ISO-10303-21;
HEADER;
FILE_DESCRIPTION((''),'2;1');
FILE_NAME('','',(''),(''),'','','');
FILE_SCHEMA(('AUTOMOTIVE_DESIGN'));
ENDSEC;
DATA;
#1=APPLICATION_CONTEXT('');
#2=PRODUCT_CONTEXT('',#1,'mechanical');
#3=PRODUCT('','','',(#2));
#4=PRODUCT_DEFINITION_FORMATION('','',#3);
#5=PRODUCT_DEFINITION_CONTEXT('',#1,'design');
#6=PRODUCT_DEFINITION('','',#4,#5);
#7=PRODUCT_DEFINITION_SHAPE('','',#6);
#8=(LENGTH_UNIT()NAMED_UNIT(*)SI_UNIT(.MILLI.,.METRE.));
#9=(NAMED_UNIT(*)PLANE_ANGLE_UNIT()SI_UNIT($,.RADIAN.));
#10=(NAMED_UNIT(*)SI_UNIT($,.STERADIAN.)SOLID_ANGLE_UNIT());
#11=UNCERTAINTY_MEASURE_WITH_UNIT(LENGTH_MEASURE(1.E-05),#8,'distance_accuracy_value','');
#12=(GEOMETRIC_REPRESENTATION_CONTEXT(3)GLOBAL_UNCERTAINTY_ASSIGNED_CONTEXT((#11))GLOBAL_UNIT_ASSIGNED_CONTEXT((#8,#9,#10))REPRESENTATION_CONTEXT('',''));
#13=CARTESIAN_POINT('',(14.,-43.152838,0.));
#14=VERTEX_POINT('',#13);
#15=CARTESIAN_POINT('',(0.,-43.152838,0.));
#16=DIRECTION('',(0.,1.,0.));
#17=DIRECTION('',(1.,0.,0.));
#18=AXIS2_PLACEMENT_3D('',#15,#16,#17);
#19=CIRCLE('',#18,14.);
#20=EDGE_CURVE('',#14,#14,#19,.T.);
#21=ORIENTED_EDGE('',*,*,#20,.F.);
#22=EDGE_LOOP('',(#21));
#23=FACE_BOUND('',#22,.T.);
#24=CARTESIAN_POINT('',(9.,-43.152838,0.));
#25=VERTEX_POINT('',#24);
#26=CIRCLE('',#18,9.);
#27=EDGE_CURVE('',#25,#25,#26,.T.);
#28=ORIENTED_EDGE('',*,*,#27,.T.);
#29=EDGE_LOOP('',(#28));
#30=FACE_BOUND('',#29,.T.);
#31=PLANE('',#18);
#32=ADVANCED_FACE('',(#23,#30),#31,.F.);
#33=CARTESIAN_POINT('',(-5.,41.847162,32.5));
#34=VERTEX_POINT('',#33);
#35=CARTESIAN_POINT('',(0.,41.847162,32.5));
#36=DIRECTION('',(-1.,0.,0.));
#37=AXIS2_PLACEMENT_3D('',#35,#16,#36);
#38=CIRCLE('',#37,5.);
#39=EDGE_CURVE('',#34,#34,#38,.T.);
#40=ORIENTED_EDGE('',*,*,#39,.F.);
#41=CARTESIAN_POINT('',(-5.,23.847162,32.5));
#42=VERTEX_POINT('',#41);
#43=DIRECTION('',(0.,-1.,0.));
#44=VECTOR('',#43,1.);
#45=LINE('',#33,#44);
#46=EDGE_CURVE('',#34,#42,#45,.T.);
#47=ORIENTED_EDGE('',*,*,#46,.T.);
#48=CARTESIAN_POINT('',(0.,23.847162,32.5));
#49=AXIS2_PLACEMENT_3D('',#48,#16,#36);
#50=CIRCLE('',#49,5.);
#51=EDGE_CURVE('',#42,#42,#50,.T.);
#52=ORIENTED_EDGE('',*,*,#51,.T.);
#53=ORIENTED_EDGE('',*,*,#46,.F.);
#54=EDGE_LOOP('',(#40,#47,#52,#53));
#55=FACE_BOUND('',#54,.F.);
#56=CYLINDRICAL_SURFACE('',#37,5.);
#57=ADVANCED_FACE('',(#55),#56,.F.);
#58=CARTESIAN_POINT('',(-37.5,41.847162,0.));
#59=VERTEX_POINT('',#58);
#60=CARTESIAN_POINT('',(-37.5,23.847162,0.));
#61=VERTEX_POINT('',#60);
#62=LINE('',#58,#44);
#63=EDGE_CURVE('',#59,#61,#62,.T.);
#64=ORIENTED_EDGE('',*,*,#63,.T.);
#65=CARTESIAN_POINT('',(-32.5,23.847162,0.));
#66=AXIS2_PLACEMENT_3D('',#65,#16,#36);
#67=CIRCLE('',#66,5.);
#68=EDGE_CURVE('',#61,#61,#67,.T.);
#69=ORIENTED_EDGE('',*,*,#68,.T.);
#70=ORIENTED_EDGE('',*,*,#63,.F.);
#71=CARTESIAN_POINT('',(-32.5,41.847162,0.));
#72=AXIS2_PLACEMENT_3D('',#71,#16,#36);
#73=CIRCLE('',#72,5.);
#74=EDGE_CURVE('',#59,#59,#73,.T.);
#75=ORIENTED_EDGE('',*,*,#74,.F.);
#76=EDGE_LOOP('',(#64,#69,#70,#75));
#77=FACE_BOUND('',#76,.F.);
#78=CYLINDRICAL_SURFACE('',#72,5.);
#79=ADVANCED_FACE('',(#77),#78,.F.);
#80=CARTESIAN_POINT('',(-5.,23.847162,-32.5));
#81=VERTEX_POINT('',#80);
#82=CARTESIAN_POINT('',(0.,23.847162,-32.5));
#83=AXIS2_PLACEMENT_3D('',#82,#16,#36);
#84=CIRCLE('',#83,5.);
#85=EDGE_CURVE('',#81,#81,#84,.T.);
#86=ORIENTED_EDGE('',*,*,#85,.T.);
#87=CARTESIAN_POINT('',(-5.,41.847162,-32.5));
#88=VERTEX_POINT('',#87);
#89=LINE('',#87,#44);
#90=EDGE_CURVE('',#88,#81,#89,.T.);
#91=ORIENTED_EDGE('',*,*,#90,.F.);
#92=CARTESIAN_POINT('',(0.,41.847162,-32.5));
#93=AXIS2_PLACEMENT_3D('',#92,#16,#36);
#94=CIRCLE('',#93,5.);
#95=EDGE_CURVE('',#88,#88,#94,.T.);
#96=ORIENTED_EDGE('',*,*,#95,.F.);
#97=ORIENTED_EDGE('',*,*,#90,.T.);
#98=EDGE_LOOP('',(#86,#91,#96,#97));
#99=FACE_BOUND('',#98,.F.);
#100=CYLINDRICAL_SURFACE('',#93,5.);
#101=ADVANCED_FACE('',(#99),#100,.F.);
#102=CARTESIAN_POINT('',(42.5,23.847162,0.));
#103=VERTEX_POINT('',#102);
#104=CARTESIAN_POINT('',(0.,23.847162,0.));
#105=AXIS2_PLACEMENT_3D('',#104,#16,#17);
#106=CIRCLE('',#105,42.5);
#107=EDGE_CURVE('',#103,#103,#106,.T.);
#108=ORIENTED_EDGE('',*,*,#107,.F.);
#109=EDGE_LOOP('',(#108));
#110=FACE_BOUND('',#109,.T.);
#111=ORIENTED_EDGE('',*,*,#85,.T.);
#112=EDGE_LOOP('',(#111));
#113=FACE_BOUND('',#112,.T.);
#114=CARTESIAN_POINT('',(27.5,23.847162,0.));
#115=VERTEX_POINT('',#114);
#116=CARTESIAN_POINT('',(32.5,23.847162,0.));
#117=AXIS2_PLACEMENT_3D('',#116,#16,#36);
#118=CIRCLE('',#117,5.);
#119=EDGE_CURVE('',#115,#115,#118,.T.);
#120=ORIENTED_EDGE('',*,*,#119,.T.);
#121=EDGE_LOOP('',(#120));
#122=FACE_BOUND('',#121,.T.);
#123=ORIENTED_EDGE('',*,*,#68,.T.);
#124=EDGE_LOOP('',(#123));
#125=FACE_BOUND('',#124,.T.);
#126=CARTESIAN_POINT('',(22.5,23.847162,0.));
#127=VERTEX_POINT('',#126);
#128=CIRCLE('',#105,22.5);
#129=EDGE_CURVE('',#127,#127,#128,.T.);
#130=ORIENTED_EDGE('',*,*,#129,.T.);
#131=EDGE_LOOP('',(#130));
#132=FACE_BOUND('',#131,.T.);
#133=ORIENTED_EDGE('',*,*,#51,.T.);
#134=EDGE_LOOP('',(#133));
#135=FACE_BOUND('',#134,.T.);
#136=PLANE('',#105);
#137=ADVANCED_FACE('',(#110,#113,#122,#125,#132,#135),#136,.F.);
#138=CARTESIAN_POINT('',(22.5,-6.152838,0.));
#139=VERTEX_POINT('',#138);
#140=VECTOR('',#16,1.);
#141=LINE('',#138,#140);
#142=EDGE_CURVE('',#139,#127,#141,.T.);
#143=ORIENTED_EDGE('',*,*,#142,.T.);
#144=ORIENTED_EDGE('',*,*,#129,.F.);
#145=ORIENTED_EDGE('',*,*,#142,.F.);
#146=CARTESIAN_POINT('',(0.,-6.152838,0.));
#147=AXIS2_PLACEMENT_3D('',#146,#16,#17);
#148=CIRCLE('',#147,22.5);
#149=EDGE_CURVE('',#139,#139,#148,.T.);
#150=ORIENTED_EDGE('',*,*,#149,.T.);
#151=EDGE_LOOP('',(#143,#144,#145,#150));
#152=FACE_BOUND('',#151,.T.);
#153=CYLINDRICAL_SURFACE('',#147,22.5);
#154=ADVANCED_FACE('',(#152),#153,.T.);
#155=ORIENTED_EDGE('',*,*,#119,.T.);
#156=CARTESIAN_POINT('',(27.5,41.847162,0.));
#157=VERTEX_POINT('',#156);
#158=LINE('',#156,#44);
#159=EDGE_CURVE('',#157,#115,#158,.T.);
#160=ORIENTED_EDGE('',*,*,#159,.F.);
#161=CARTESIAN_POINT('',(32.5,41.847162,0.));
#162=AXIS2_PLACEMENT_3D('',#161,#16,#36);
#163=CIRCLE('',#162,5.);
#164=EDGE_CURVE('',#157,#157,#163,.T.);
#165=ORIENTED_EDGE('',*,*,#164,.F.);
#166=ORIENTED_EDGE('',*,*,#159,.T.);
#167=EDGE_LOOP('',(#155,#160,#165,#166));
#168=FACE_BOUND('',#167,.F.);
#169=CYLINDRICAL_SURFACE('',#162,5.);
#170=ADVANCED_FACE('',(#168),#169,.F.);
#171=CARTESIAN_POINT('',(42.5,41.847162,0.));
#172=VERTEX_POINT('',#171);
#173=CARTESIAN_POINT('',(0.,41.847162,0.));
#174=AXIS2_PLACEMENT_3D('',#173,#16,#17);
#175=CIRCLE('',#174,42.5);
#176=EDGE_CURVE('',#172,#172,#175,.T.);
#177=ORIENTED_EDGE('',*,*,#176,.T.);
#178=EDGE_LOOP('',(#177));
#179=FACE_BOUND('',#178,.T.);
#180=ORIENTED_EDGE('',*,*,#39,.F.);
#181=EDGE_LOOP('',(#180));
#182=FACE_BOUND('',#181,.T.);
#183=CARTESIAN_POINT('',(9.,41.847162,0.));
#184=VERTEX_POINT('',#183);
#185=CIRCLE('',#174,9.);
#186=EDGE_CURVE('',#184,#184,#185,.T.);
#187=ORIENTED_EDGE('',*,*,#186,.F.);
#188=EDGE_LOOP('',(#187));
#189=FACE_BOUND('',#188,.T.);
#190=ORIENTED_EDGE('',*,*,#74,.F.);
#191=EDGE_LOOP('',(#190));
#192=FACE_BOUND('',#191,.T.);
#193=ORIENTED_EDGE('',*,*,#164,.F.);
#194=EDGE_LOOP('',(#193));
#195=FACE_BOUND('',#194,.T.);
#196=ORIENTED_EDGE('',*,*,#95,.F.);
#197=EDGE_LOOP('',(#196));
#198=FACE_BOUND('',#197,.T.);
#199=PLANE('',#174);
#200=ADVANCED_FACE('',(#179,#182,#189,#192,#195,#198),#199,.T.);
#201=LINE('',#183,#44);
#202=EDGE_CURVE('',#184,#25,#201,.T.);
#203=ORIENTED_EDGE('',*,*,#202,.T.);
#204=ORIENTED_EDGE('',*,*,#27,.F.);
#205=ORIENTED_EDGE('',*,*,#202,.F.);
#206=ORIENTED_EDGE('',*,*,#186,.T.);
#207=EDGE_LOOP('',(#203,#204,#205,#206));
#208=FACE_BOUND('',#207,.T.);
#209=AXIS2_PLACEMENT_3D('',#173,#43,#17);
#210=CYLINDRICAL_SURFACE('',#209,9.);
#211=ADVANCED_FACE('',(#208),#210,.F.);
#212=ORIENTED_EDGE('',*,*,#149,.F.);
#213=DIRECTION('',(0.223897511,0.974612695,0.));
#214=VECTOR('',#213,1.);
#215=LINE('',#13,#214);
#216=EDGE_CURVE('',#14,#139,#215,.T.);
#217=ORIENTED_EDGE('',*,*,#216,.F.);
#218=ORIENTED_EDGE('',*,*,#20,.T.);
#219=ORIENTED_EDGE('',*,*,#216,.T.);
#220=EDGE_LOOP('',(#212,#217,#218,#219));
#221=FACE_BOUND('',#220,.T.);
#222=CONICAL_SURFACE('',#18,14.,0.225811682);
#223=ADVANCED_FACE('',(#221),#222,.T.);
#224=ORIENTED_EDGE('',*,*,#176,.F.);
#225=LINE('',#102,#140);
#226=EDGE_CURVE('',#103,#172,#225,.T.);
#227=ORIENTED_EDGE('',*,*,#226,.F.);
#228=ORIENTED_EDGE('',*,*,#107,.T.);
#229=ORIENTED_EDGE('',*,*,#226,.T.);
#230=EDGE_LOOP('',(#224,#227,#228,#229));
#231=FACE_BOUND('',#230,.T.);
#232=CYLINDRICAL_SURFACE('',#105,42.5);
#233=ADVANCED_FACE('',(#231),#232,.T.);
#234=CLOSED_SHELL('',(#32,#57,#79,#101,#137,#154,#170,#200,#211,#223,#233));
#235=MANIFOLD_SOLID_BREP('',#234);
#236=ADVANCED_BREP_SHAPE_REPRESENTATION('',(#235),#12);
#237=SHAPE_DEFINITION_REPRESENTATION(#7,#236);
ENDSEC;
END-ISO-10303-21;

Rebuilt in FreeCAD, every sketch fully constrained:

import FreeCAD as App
import Part
import Sketcher
from FreeCAD import Vector


def add_polygon(sketch, points):
    """Adds a closed chain of lines whose ends are joined by coincident constraints."""
    first, n = sketch.GeometryCount, len(points)
    for a, b in zip(points, points[1:] + points[:1]):
        sketch.addGeometry(Part.LineSegment(App.Vector(*a, 0), App.Vector(*b, 0)), False)
    for i in range(n):
        sketch.addConstraint(Sketcher.Constraint("Coincident", first + i, 2, first + (i + 1) % n, 1))

doc = App.newDocument("Part")
body = doc.addObject("PartDesign::Body", "Body")

# Sketch on XY plane
sketch1 = doc.addObject("Sketcher::SketchObject", "Sketch")
body.addObject(sketch1)
sketch1.AttachmentSupport = (doc.XY_Plane, [""])
sketch1.MapMode = "FlatFace"
add_polygon(sketch1, [(9, 42), (9, -43), (14, -43), (22, -6), (22, 24), (42, 24), (42, 42)])  # lines 0-6
sketch1.addConstraint(Sketcher.Constraint("Vertical", 0))
sketch1.addConstraint(Sketcher.Constraint("Horizontal", 1))
sketch1.addConstraint(Sketcher.Constraint("Vertical", 3))
sketch1.addConstraint(Sketcher.Constraint("Horizontal", 4))
sketch1.addConstraint(Sketcher.Constraint("Vertical", 5))
sketch1.addConstraint(Sketcher.Constraint("Horizontal", 6))
sketch1.addConstraint(Sketcher.Constraint("DistanceX", 1, 1, 1, 2, 5.0))
sketch1.addConstraint(Sketcher.Constraint("DistanceX", 4, 1, 4, 2, 20.0))
sketch1.addConstraint(Sketcher.Constraint("DistanceY", 0, 2, 0, 1, 85.0))
sketch1.addConstraint(Sketcher.Constraint("DistanceY", 3, 1, 3, 2, 30.0))
sketch1.addConstraint(Sketcher.Constraint("DistanceY", 5, 1, 5, 2, 18.0))
sketch1.addConstraint(Sketcher.Constraint("DistanceX", 6, 2, 6, 1, 33.5))
sketch1.addConstraint(Sketcher.Constraint("DistanceX", -1, 1, 0, 2, 9.0))
sketch1.addConstraint(Sketcher.Constraint("DistanceY", 0, 2, -1, 1, 43.152838))
revolution = doc.addObject("PartDesign::Revolution", "Revolution")
body.addObject(revolution)
revolution.Profile = sketch1
revolution.ReferenceAxis = (sketch1, ["V_Axis"])
revolution.Angle = 360

# Sketch on XZ plane
sketch2 = doc.addObject("Sketcher::SketchObject", "Sketch001")
body.addObject(sketch2)
sketch2.AttachmentSupport = (doc.XZ_Plane, [""])
sketch2.MapMode = "FlatFace"
sketch2.AttachmentOffset = App.Placement(Vector(0, 0, -41.847162), App.Rotation())
sketch2.addGeometry(Part.Circle(Vector(32, 0, 0), Vector(0, 0, 1), 5), False)
sketch2.addGeometry(Part.Circle(Vector(0, -32, 0), Vector(0, 0, 1), 5), False)
sketch2.addGeometry(Part.Circle(Vector(-32, 0, 0), Vector(0, 0, 1), 5), False)
sketch2.addGeometry(Part.Circle(Vector(0, 32, 0), Vector(0, 0, 1), 5), False)
sketch2.addConstraint(Sketcher.Constraint("Equal", 0, 1))
sketch2.addConstraint(Sketcher.Constraint("Equal", 1, 2))
sketch2.addConstraint(Sketcher.Constraint("Equal", 2, 3))
sketch2.addConstraint(Sketcher.Constraint("Symmetric", 0, 3, 2, 3, -1, 1))
sketch2.addConstraint(Sketcher.Constraint("Symmetric", 1, 3, 3, 3, -1, 1))
sketch2.addConstraint(Sketcher.Constraint("PointOnObject", 0, 3, -1))
sketch2.addConstraint(Sketcher.Constraint("PointOnObject", 1, 3, -2))
sketch2.addConstraint(Sketcher.Constraint("Diameter", 0, 10.0))
sketch2.addConstraint(Sketcher.Constraint("DistanceX", 2, 3, 0, 3, 65.0))
sketch2.addConstraint(Sketcher.Constraint("DistanceY", 1, 3, 3, 3, 65.0))
pocket1 = doc.addObject("PartDesign::Pocket", "Pocket")
body.addObject(pocket1)
pocket1.Profile = sketch2
pocket1.Type = "ThroughAll"
pocket1.Reversed = True

doc.recompute()
